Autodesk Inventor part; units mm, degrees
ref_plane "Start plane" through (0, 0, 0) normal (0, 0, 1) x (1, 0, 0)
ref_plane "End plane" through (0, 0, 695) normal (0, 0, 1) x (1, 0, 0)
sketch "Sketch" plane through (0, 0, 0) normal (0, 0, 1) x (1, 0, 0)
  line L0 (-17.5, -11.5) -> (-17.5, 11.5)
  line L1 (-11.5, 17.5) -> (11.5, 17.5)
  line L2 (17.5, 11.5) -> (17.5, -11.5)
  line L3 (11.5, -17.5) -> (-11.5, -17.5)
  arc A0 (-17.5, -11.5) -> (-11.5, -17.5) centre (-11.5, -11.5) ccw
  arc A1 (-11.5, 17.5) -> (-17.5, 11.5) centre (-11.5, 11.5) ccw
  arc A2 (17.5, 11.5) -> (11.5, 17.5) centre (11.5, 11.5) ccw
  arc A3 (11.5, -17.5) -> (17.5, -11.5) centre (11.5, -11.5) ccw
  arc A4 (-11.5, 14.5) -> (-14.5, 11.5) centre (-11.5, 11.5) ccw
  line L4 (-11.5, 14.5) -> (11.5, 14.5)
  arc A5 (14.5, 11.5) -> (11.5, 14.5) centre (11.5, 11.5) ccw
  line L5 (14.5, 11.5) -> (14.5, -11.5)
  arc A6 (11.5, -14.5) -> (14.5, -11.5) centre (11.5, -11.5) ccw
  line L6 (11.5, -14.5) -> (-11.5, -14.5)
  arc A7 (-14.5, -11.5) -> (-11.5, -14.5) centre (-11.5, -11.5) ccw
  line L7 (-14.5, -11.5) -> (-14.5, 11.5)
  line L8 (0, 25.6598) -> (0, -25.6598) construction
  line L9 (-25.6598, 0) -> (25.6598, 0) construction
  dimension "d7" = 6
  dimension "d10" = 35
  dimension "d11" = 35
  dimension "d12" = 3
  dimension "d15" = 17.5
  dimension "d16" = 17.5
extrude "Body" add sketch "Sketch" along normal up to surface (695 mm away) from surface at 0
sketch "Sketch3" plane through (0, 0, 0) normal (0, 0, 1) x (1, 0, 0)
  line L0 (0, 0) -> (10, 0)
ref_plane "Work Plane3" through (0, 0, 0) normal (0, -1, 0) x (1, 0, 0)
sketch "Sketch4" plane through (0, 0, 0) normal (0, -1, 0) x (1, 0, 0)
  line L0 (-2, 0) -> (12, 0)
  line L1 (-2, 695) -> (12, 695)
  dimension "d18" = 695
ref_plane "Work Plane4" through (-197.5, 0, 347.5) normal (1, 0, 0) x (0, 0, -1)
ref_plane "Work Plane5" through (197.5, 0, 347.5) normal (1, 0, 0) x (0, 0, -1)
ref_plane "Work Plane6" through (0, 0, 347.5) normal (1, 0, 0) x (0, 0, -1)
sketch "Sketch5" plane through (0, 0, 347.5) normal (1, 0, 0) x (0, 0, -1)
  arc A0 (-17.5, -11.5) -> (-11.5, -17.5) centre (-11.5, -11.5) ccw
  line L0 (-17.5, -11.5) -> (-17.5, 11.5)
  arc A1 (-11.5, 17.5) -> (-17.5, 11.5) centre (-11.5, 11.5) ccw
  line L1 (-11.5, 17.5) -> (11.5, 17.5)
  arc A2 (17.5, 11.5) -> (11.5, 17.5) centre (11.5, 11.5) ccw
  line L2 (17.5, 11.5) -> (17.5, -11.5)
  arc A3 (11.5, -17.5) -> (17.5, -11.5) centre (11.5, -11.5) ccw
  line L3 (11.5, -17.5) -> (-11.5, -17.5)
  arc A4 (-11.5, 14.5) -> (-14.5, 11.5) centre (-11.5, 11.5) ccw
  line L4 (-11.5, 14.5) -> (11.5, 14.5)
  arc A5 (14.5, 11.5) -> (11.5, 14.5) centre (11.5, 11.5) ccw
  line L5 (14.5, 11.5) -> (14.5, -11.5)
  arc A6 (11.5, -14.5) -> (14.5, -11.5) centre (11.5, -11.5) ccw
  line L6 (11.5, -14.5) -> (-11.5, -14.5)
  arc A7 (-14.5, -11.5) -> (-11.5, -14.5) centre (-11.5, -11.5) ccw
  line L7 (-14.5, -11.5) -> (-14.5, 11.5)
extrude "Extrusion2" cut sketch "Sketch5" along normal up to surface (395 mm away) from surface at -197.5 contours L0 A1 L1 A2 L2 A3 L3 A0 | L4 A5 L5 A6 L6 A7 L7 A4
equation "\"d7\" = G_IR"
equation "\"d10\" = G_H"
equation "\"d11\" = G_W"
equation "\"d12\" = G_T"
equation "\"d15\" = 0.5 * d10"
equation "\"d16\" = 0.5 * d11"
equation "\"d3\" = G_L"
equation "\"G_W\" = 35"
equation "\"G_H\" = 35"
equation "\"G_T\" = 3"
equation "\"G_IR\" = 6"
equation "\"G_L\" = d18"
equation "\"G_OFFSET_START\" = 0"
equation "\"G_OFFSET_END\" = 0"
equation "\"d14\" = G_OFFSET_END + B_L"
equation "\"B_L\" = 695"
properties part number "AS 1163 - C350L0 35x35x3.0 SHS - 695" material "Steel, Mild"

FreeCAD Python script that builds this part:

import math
import FreeCAD as App
import Part
import Sketcher

V = App.Vector

doc = App.newDocument("Part")
body = doc.addObject("PartDesign::Body", "Body")
body.AllowCompound = True

# Sketch on XY plane
sketch1 = body.newObject("Sketcher::SketchObject", "Sketch")
sketch1.AttachmentSupport = (doc.getObject("XY_Plane"), [""])
sketch1.MapMode = "FlatFace"
sketch1.addGeometry(Part.LineSegment(V(-17.5, 11.5, 0), V(-17.5, -11.5, 0)), False)
sketch1.addGeometry(Part.ArcOfCircle(Part.Circle(V(-11.5, -11.5, 0), V(0, 0, 1), 6), math.radians(180), math.radians(270)), False)
sketch1.addGeometry(Part.LineSegment(V(-11.5, -17.5, 0), V(11.5, -17.5, 0)), False)
sketch1.addGeometry(Part.ArcOfCircle(Part.Circle(V(11.5, -11.5, 0), V(0, 0, 1), 6), math.radians(-90), math.radians(0)), False)
sketch1.addGeometry(Part.LineSegment(V(17.5, -11.5, 0), V(17.5, 11.5, 0)), False)
sketch1.addGeometry(Part.ArcOfCircle(Part.Circle(V(11.5, 11.5, 0), V(0, 0, 1), 6), math.radians(0), math.radians(90)), False)
sketch1.addGeometry(Part.LineSegment(V(11.5, 17.5, 0), V(-11.5, 17.5, 0)), False)
sketch1.addGeometry(Part.ArcOfCircle(Part.Circle(V(-11.5, 11.5, 0), V(0, 0, 1), 6), math.radians(90), math.radians(180)), False)
sketch1.addGeometry(Part.ArcOfCircle(Part.Circle(V(-11.5, 11.5, 0), V(0, 0, 1), 3), math.radians(90), math.radians(180)), False)
sketch1.addGeometry(Part.LineSegment(V(-11.5, 14.5, 0), V(11.5, 14.5, 0)), False)
sketch1.addGeometry(Part.ArcOfCircle(Part.Circle(V(11.5, 11.5, 0), V(0, 0, 1), 3), math.radians(0), math.radians(90)), False)
sketch1.addGeometry(Part.LineSegment(V(14.5, 11.5, 0), V(14.5, -11.5, 0)), False)
sketch1.addGeometry(Part.ArcOfCircle(Part.Circle(V(11.5, -11.5, 0), V(0, 0, 1), 3), math.radians(-90), math.radians(0)), False)
sketch1.addGeometry(Part.LineSegment(V(11.5, -14.5, 0), V(-11.5, -14.5, 0)), False)
sketch1.addGeometry(Part.ArcOfCircle(Part.Circle(V(-11.5, -11.5, 0), V(0, 0, 1), 3), math.radians(180), math.radians(270)), False)
sketch1.addGeometry(Part.LineSegment(V(-14.5, -11.5, 0), V(-14.5, 11.5, 0)), False)
sketch1.addConstraint(Sketcher.Constraint("Tangent", 0, 2, 1, 1))
sketch1.addConstraint(Sketcher.Constraint("Tangent", 1, 2, 2, 1))
sketch1.addConstraint(Sketcher.Constraint("Tangent", 2, 2, 3, 1))
sketch1.addConstraint(Sketcher.Constraint("Tangent", 3, 2, 4, 1))
sketch1.addConstraint(Sketcher.Constraint("Tangent", 4, 2, 5, 1))
sketch1.addConstraint(Sketcher.Constraint("Tangent", 5, 2, 6, 1))
sketch1.addConstraint(Sketcher.Constraint("Tangent", 6, 2, 7, 1))
sketch1.addConstraint(Sketcher.Constraint("Tangent", 7, 2, 0, 1))
sketch1.addConstraint(Sketcher.Constraint("Tangent", 8, 1, 9, 1))
sketch1.addConstraint(Sketcher.Constraint("Tangent", 9, 2, 10, 2))
sketch1.addConstraint(Sketcher.Constraint("Tangent", 10, 1, 11, 1))
sketch1.addConstraint(Sketcher.Constraint("Tangent", 11, 2, 12, 2))
sketch1.addConstraint(Sketcher.Constraint("Tangent", 12, 1, 13, 1))
sketch1.addConstraint(Sketcher.Constraint("Tangent", 13, 2, 14, 2))
sketch1.addConstraint(Sketcher.Constraint("Tangent", 14, 1, 15, 1))
sketch1.addConstraint(Sketcher.Constraint("Tangent", 15, 2, 8, 2))
sketch1.addConstraint(Sketcher.Constraint("Vertical", 0))
sketch1.addConstraint(Sketcher.Constraint("Horizontal", 2))
sketch1.addConstraint(Sketcher.Constraint("Vertical", 4))
sketch1.addConstraint(Sketcher.Constraint("Horizontal", 6))
sketch1.addConstraint(Sketcher.Constraint("Horizontal", 9))
sketch1.addConstraint(Sketcher.Constraint("Vertical", 11))
sketch1.addConstraint(Sketcher.Constraint("Horizontal", 13))
sketch1.addConstraint(Sketcher.Constraint("Vertical", 15))
sketch1.addConstraint(Sketcher.Constraint("Coincident", 8, 3, 7, 3))
sketch1.addConstraint(Sketcher.Constraint("Coincident", 10, 3, 5, 3))
sketch1.addConstraint(Sketcher.Constraint("Coincident", 12, 3, 3, 3))
sketch1.addConstraint(Sketcher.Constraint("Equal", 1, 3))
sketch1.addConstraint(Sketcher.Constraint("Equal", 3, 5))
sketch1.addConstraint(Sketcher.Constraint("Equal", 5, 7))
sketch1.addConstraint(Sketcher.Constraint("Equal", 12, 14))
sketch1.addConstraint(Sketcher.Constraint("Symmetric", 1, 3, 5, 3, -1, 1))
sketch1.addConstraint(Sketcher.Constraint("Equal", 13, 0))
sketch1.addConstraint(Sketcher.Constraint("Radius", 1, 6.0))
sketch1.addConstraint(Sketcher.Constraint("Radius", 8, 3.0))
sketch1.addConstraint(Sketcher.Constraint("DistanceX", 0, 2, -1, 1, 17.5))
pad1 = body.newObject("PartDesign::Pad", "Pad")
pad1.Profile = sketch1
pad1.Length = 695

# Sketch on YZ plane
sketch2 = body.newObject("Sketcher::SketchObject", "Sketch001")
sketch2.AttachmentSupport = (doc.getObject("YZ_Plane"), [""])
sketch2.MapMode = "FlatFace"
sketch2.AttachmentOffset = App.Placement(V(0, 0, -197.5), App.Rotation())
sketch2.addGeometry(Part.LineSegment(V(12, 365, 0), V(-12, 365, 0)), False)
sketch2.addGeometry(Part.ArcOfCircle(Part.Circle(V(-12, 359, 0), V(0, 0, 1), 6), math.radians(90), math.radians(180)), False)
sketch2.addGeometry(Part.LineSegment(V(-18, 359, 0), V(-18, 336, 0)), False)
sketch2.addGeometry(Part.ArcOfCircle(Part.Circle(V(-12, 336, 0), V(0, 0, 1), 6), math.radians(180), math.radians(270)), False)
sketch2.addGeometry(Part.LineSegment(V(-12, 330, 0), V(12, 330, 0)), False)
sketch2.addGeometry(Part.ArcOfCircle(Part.Circle(V(12, 336, 0), V(0, 0, 1), 6), math.radians(-90), math.radians(0)), False)
sketch2.addGeometry(Part.LineSegment(V(18, 336, 0), V(18, 359, 0)), False)
sketch2.addGeometry(Part.ArcOfCircle(Part.Circle(V(12, 359, 0), V(0, 0, 1), 6), math.radians(0), math.radians(90)), False)
sketch2.addConstraint(Sketcher.Constraint("Tangent", 0, 2, 1, 1))
sketch2.addConstraint(Sketcher.Constraint("Tangent", 1, 2, 2, 1))
sketch2.addConstraint(Sketcher.Constraint("Tangent", 2, 2, 3, 1))
sketch2.addConstraint(Sketcher.Constraint("Tangent", 3, 2, 4, 1))
sketch2.addConstraint(Sketcher.Constraint("Tangent", 4, 2, 5, 1))
sketch2.addConstraint(Sketcher.Constraint("Tangent", 5, 2, 6, 1))
sketch2.addConstraint(Sketcher.Constraint("Tangent", 6, 2, 7, 1))
sketch2.addConstraint(Sketcher.Constraint("Tangent", 7, 2, 0, 1))
sketch2.addConstraint(Sketcher.Constraint("Horizontal", 0))
sketch2.addConstraint(Sketcher.Constraint("Vertical", 2))
sketch2.addConstraint(Sketcher.Constraint("Horizontal", 4))
sketch2.addConstraint(Sketcher.Constraint("Vertical", 6))
sketch2.addConstraint(Sketcher.Constraint("Equal", 1, 3))
sketch2.addConstraint(Sketcher.Constraint("Equal", 3, 5))
sketch2.addConstraint(Sketcher.Constraint("Equal", 5, 7))
sketch2.addConstraint(Sketcher.Constraint("Equal", 4, 2))
sketch2.addConstraint(Sketcher.Constraint("Radius", 1, 6.0))
sketch2.addConstraint(Sketcher.Constraint("DistanceX", 0, 2, 0, 1, 23.0))
sketch2.addConstraint(Sketcher.Constraint("DistanceY", -1, 1, 1, 3, 359.0))
sketch2.addConstraint(Sketcher.Constraint("DistanceX", 1, 3, -1, 1, 11.5))
pocket1 = body.newObject("PartDesign::Pocket", "Pocket")
pocket1.Profile = sketch2
pocket1.Length = 395
pocket1.Reversed = True

doc.recompute()
